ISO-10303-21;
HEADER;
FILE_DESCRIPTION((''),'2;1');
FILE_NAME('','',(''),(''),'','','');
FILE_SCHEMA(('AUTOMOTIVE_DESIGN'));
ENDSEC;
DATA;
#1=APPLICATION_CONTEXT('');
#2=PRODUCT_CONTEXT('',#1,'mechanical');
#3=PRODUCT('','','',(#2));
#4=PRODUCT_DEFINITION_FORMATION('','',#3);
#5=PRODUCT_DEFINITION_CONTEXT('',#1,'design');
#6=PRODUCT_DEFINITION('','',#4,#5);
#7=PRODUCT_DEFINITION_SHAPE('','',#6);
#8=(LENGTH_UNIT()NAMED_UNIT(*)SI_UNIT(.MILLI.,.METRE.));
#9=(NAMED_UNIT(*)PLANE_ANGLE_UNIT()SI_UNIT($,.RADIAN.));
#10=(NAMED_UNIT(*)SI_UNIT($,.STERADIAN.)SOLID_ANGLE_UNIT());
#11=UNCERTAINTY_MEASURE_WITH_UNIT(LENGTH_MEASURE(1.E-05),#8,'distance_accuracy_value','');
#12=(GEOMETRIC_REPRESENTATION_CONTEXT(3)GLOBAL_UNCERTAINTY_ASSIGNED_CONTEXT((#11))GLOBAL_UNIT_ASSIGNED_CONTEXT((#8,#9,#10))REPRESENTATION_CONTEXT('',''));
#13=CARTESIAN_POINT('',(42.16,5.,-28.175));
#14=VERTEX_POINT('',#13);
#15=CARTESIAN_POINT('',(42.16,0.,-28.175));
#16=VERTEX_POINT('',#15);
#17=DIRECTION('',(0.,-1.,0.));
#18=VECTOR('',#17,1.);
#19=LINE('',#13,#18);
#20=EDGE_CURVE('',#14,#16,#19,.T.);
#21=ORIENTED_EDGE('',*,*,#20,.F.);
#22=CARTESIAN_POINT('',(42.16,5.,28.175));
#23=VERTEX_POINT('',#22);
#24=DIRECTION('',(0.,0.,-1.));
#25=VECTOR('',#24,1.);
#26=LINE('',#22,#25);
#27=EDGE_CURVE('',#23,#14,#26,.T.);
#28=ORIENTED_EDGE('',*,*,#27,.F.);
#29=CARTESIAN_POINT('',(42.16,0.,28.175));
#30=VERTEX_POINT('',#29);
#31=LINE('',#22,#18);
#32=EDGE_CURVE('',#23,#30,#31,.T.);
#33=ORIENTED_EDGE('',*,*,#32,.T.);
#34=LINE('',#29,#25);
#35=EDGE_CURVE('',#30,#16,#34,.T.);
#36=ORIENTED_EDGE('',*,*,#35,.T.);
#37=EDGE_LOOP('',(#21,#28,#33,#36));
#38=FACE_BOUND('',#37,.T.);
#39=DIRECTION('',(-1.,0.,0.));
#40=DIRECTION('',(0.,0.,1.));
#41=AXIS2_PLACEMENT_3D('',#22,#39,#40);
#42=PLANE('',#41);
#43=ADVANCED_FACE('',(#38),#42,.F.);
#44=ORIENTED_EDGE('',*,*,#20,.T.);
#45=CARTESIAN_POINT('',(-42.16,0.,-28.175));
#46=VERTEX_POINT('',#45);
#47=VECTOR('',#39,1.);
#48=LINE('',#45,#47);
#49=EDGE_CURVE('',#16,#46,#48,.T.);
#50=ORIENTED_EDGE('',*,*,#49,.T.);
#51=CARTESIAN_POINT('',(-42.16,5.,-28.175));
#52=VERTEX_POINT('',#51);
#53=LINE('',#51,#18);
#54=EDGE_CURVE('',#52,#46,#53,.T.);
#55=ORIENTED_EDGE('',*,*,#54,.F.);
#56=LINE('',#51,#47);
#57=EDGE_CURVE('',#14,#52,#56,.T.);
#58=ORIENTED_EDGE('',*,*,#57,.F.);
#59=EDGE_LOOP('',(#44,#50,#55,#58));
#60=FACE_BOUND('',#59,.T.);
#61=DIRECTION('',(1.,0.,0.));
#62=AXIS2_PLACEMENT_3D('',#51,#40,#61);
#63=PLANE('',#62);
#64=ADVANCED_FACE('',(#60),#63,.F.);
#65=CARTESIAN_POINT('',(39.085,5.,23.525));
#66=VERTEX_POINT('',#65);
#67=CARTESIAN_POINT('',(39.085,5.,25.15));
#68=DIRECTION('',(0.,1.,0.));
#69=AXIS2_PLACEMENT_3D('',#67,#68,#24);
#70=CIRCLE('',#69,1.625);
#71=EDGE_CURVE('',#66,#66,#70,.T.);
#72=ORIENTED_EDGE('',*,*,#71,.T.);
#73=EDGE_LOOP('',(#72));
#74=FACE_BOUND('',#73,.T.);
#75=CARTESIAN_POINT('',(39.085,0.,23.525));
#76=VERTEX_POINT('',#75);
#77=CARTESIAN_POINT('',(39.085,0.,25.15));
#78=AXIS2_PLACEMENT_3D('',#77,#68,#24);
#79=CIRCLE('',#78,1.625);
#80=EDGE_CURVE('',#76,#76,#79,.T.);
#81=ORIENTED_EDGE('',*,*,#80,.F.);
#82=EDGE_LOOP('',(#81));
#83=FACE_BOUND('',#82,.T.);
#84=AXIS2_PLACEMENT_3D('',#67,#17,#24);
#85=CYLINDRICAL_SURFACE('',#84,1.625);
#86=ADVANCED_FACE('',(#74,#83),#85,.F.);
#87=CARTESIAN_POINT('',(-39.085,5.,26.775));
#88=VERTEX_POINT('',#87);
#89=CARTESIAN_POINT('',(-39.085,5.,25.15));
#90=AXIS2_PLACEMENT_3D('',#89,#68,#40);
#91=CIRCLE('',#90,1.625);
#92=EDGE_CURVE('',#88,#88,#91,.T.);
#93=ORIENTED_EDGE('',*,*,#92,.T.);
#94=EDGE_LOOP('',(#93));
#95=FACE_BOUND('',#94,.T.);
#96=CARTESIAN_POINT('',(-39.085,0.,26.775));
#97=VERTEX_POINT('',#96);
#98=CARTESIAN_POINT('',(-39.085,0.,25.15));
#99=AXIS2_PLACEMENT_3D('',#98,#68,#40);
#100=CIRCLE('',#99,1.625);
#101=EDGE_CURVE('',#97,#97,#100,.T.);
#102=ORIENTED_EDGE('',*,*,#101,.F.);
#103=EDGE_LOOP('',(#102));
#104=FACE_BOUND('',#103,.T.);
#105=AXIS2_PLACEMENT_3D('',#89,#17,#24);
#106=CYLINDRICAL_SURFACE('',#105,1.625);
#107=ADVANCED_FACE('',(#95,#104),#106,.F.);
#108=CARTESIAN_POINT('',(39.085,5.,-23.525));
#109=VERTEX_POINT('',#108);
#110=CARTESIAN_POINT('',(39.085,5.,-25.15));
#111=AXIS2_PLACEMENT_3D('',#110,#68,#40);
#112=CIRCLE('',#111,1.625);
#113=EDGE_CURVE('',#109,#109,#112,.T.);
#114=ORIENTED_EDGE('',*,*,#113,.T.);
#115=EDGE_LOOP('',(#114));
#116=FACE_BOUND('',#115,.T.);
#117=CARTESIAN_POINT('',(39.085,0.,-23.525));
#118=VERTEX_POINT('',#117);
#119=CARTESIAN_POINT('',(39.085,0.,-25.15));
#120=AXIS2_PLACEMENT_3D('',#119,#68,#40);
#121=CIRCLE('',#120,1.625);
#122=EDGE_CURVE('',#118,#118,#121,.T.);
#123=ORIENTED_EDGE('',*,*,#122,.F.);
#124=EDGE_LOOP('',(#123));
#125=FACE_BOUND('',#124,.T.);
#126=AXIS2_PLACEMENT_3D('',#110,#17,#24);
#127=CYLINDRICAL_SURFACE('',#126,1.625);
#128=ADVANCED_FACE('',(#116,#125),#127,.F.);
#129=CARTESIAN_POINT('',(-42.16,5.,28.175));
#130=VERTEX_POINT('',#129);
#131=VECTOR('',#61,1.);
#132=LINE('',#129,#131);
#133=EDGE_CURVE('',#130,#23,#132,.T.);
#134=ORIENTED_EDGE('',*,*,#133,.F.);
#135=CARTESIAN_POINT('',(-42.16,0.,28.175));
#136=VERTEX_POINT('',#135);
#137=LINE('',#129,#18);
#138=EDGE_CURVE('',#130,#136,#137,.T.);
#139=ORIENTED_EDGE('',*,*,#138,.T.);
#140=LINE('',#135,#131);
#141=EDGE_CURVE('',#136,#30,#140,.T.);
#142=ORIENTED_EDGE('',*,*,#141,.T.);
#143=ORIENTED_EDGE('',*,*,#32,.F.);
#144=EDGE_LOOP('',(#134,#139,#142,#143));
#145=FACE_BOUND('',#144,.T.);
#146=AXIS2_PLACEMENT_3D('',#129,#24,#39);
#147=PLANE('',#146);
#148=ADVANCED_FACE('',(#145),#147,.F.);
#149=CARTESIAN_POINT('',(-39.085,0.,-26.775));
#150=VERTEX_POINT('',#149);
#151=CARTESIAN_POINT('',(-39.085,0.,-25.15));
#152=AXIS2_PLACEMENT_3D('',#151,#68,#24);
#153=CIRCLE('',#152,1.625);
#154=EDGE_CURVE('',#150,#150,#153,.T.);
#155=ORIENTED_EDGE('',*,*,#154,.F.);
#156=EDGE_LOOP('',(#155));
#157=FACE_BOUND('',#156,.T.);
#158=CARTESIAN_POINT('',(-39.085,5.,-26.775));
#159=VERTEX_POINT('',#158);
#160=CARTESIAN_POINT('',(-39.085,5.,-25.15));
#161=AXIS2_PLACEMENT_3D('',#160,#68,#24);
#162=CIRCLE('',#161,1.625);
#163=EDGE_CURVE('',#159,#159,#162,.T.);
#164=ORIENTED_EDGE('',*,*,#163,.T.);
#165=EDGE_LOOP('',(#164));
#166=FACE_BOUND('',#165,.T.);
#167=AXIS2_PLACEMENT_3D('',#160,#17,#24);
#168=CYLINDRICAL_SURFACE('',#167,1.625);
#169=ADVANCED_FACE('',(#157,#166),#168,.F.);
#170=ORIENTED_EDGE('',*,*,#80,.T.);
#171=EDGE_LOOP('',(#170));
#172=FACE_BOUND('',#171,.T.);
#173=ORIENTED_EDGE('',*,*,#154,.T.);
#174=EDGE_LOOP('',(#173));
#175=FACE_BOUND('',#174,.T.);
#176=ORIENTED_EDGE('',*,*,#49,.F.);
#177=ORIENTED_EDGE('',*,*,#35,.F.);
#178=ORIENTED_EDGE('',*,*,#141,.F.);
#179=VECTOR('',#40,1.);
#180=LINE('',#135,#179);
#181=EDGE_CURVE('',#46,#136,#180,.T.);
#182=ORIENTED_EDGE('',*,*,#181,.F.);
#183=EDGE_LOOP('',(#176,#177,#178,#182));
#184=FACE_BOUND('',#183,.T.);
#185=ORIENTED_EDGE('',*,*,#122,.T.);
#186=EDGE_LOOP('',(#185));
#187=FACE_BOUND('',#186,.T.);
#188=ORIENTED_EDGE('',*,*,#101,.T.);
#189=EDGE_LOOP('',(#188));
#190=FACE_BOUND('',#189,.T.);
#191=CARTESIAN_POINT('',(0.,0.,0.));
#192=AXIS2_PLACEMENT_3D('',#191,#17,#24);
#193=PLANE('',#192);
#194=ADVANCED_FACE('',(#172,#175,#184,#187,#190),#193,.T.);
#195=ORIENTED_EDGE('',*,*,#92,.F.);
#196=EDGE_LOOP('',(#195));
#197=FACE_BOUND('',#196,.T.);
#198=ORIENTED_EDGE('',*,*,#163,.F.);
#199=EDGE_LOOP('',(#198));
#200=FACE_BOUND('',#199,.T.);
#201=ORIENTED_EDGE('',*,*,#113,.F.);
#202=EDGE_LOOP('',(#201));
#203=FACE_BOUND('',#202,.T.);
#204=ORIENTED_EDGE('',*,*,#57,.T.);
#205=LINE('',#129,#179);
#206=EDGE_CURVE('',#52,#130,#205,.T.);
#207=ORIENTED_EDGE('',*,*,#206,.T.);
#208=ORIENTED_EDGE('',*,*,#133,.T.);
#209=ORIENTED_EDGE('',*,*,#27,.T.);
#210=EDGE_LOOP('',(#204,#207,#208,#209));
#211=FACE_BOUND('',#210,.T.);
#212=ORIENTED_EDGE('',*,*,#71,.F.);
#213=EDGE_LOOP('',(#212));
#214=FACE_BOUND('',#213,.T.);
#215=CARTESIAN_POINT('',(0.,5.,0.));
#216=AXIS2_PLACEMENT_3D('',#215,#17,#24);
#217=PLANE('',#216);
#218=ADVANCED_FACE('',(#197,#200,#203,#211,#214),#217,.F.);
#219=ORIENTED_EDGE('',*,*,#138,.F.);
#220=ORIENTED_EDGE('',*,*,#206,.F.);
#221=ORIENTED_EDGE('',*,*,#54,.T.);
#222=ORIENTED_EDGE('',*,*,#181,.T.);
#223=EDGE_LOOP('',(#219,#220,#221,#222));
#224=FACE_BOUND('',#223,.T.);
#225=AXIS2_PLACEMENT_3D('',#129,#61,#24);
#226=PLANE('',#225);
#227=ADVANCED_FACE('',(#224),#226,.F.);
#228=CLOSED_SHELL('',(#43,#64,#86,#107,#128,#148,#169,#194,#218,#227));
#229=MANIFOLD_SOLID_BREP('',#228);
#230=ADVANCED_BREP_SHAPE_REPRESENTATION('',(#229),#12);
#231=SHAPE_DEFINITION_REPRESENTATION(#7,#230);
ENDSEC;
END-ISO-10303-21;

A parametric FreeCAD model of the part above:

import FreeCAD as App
import Part
import Sketcher

V = App.Vector

doc = App.newDocument("Part")
body = doc.addObject("PartDesign::Body", "Body")

sketch1 = body.newObject("Sketcher::SketchObject", "Sketch")
sketch1.AttachmentSupport = (doc.getObject("XZ_Plane"), [""])
sketch1.MapMode = "FlatFace"
sketch1.addGeometry([
    Part.LineSegment(V(-42.16, -28.175, 0), V(-42.16, 28.175, 0)),
    Part.LineSegment(V(-42.16, 28.175, 0), V(42.16, 28.175, 0)),
    Part.LineSegment(V(42.16, 28.175, 0), V(42.16, -28.175, 0)),
    Part.LineSegment(V(42.16, -28.175, 0), V(-42.16, -28.175, 0)),
    Part.Circle(V(-39.085, 25.15, 0), V(0, 0, 1), 1.625),
    Part.Circle(V(39.085, 25.15, 0), V(0, 0, 1), 1.625),
    Part.Circle(V(-39.085, -25.15, 0), V(0, 0, 1), 1.625),
    Part.Circle(V(39.085, -25.15, 0), V(0, 0, 1), 1.625),
], False)
sketch1.addConstraint([
    Sketcher.Constraint("Coincident", 0, 2, 1, 1),
    Sketcher.Constraint("Coincident", 1, 2, 2, 1),
    Sketcher.Constraint("Coincident", 2, 2, 3, 1),
    Sketcher.Constraint("Coincident", 3, 2, 0, 1),
    Sketcher.Constraint("Vertical", 0),
    Sketcher.Constraint("Horizontal", 1),
    Sketcher.Constraint("Vertical", 2),
    Sketcher.Constraint("Horizontal", 3),
    Sketcher.Constraint("Equal", 4, 5),
    Sketcher.Constraint("Equal", 5, 6),
    Sketcher.Constraint("Equal", 6, 7),
    Sketcher.Constraint("Symmetric", 5, 3, 6, 3, -1, 1),
    Sketcher.Constraint("Symmetric", 4, 3, 7, 3, -1, 1),
    Sketcher.Constraint("Symmetric", 0, 2, 2, 2, -1, 1),
    Sketcher.Constraint("Symmetric", 4, 3, 5, 3, -2),
    Sketcher.Constraint("Diameter", 4, 3.25),
    Sketcher.Constraint("DistanceX", 1, 1, 1, 2, 84.32),
    Sketcher.Constraint("DistanceY", 0, 1, 0, 2, 56.35),
    Sketcher.Constraint("DistanceY", 6, 3, 4, 3, 50.3),
    Sketcher.Constraint("DistanceX", 4, 3, 5, 3, 78.17),
])
pad1 = body.newObject("PartDesign::Pad", "Pad")
pad1.Profile = sketch1
pad1.Length = 5
pad1.Reversed = True

doc.recompute()
